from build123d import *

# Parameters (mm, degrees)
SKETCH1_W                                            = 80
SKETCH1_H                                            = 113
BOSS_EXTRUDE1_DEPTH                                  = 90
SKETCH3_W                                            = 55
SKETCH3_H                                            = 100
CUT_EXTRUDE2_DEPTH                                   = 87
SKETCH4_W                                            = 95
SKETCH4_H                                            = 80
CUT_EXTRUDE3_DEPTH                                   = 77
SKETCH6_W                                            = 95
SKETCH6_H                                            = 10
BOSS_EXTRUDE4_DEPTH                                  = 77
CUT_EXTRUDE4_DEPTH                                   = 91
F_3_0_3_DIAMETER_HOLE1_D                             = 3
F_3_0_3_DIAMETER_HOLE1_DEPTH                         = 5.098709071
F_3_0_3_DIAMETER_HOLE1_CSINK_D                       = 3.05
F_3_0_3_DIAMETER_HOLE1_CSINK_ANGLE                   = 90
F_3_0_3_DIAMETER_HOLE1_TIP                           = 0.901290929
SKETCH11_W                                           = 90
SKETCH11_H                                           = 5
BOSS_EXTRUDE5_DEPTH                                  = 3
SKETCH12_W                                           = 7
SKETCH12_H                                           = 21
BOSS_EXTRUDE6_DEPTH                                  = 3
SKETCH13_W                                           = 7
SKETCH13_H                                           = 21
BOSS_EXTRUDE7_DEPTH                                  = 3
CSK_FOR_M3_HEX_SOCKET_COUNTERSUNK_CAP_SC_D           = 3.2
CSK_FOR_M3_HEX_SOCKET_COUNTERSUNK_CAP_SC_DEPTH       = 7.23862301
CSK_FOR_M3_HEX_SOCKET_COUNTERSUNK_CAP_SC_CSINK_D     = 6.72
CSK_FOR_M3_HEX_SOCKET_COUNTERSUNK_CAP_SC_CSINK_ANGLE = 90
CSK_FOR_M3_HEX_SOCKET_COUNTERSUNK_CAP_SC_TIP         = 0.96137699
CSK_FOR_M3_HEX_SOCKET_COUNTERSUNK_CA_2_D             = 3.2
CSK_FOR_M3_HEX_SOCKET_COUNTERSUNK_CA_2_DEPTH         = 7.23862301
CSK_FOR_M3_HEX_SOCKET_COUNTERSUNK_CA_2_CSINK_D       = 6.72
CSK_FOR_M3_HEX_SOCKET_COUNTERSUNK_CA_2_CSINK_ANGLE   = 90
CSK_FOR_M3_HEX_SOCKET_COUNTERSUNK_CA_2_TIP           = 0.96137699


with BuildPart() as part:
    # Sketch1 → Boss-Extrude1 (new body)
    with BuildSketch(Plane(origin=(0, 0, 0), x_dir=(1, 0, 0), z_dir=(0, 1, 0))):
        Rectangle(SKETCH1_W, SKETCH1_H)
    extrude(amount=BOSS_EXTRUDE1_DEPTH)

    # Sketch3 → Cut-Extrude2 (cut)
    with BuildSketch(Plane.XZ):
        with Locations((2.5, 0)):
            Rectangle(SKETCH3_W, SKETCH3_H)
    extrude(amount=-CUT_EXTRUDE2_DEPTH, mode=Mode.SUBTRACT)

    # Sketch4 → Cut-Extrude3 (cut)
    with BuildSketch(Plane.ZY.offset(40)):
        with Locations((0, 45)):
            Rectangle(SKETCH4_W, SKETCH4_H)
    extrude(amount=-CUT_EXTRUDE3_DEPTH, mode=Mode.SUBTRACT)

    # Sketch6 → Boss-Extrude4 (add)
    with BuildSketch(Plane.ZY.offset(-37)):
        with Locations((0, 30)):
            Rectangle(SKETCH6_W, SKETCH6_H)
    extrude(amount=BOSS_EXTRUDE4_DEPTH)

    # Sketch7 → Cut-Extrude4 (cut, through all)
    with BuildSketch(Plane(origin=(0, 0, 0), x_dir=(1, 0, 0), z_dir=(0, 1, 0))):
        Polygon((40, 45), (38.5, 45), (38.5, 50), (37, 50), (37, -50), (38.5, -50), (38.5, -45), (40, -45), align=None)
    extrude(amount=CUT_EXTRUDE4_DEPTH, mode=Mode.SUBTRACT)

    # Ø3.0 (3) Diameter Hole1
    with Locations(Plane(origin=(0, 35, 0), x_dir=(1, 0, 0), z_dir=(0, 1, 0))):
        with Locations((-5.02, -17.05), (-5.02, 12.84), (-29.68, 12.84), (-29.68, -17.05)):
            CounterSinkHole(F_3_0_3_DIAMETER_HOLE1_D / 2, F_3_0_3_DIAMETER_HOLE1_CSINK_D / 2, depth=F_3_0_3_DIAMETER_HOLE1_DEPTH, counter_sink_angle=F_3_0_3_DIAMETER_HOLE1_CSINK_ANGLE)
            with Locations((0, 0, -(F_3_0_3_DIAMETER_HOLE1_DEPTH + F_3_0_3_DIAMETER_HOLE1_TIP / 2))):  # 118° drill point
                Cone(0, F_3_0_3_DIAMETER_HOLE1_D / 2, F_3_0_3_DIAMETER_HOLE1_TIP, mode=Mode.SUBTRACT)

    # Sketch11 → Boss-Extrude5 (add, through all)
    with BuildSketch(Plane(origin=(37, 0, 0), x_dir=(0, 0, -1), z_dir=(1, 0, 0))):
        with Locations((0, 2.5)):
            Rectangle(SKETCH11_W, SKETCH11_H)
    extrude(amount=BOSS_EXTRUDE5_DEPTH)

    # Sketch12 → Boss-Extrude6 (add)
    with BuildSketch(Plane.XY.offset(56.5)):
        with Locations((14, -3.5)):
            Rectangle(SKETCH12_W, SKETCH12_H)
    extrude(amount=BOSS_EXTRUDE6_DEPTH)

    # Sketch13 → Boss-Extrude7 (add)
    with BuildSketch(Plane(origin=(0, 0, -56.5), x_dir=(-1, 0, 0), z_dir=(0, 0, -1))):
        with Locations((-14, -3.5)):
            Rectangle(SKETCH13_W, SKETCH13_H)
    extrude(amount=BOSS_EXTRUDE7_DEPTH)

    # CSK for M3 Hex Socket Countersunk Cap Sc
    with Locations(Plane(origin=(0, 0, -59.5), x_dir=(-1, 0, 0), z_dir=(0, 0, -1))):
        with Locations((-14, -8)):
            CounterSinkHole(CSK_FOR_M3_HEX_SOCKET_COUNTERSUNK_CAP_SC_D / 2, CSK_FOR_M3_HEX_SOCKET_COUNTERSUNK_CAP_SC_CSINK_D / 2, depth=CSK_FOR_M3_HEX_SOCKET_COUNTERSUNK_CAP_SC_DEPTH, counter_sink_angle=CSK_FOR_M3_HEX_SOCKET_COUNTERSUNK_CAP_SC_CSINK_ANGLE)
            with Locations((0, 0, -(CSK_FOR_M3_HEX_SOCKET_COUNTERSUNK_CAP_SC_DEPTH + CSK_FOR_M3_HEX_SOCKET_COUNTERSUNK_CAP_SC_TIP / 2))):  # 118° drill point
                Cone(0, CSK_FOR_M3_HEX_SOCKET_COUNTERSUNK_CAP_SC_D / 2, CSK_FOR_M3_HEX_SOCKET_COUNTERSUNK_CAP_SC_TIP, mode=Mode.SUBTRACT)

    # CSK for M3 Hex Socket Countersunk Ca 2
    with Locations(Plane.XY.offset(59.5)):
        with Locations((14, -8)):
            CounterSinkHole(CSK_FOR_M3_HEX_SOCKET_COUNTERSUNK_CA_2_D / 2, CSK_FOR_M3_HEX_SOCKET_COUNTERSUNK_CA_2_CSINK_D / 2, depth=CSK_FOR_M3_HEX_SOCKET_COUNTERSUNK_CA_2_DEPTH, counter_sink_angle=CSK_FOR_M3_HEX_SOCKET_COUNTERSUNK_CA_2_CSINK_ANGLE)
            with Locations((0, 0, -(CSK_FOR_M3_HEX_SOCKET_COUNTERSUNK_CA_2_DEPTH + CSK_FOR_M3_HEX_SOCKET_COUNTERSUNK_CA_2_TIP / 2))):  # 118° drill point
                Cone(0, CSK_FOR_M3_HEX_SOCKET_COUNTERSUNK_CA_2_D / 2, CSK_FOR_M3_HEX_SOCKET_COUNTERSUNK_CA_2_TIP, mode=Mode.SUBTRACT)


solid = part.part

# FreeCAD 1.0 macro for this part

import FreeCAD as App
import Part
import Sketcher


def add_polygon(sketch, points):
    """Adds a closed chain of lines whose ends are joined by coincident constraints."""
    first, n = sketch.GeometryCount, len(points)
    for a, b in zip(points, points[1:] + points[:1]):
        sketch.addGeometry(Part.LineSegment(App.Vector(*a, 0), App.Vector(*b, 0)), False)
    for i in range(n):
        sketch.addConstraint(Sketcher.Constraint("Coincident", first + i, 2, first + (i + 1) % n, 1))

doc = App.newDocument("Part")
body = doc.addObject("PartDesign::Body", "Body")

sketch1 = body.newObject("Sketcher::SketchObject", "Sketch")
sketch1.AttachmentSupport = (doc.getObject("XZ_Plane"), [""])
sketch1.MapMode = "FlatFace"
add_polygon(sketch1, [(-40, -56), (-40, 56), (40, 56), (40, -56)])
sketch1.addConstraint(Sketcher.Constraint("Vertical", 0))
sketch1.addConstraint(Sketcher.Constraint("Horizontal", 1))
sketch1.addConstraint(Sketcher.Constraint("Vertical", 2))
sketch1.addConstraint(Sketcher.Constraint("Horizontal", 3))
sketch1.addConstraint(Sketcher.Constraint("Symmetric", 0, 2, 2, 2, -1, 1))
sketch1.addConstraint(Sketcher.Constraint("DistanceX", 1, 1, 1, 2, 80.0))
sketch1.addConstraint(Sketcher.Constraint("DistanceY", 0, 1, 0, 2, 113.0))
pad1 = body.newObject("PartDesign::Pad", "Pad")
pad1.Profile = sketch1
pad1.Length = 90
pad1.Reversed = True

sketch2 = body.newObject("Sketcher::SketchObject", "Sketch001")
sketch2.AttachmentSupport = (doc.getObject("XZ_Plane"), [""])
sketch2.MapMode = "FlatFace"
add_polygon(sketch2, [(-25, 50), (-25, -50), (30, -50), (30, 50)])
sketch2.addConstraint(Sketcher.Constraint("Vertical", 0))
sketch2.addConstraint(Sketcher.Constraint("Horizontal", 1))
sketch2.addConstraint(Sketcher.Constraint("Vertical", 2))
sketch2.addConstraint(Sketcher.Constraint("Horizontal", 3))
sketch2.addConstraint(Sketcher.Constraint("DistanceX", 1, 1, 1, 2, 55.0))
sketch2.addConstraint(Sketcher.Constraint("DistanceY", 0, 2, 0, 1, 100.0))
sketch2.addConstraint(Sketcher.Constraint("DistanceX", 0, 2, -1, 1, 25.0))
sketch2.addConstraint(Sketcher.Constraint("DistanceY", 0, 2, -1, 1, 50.0))
pocket1 = body.newObject("PartDesign::Pocket", "Pocket")
pocket1.Profile = sketch2
pocket1.Length = 87

sketch3 = body.newObject("Sketcher::SketchObject", "Sketch002")
sketch3.AttachmentSupport = (doc.getObject("YZ_Plane"), [""])
sketch3.MapMode = "FlatFace"
sketch3.AttachmentOffset = App.Placement(App.Vector(0, 0, -40), App.Rotation())
add_polygon(sketch3, [(85, -48), (5, -48), (5, 48), (85, 48)])
sketch3.addConstraint(Sketcher.Constraint("Horizontal", 0))
sketch3.addConstraint(Sketcher.Constraint("Vertical", 1))
sketch3.addConstraint(Sketcher.Constraint("Horizontal", 2))
sketch3.addConstraint(Sketcher.Constraint("Vertical", 3))
sketch3.addConstraint(Sketcher.Constraint("DistanceX", 0, 2, 0, 1, 80.0))
sketch3.addConstraint(Sketcher.Constraint("DistanceY", 1, 1, 1, 2, 95.0))
sketch3.addConstraint(Sketcher.Constraint("DistanceX", -1, 1, 0, 2, 5.0))
sketch3.addConstraint(Sketcher.Constraint("DistanceY", 0, 2, -1, 1, 47.5))
pocket2 = body.newObject("PartDesign::Pocket", "Pocket001")
pocket2.Profile = sketch3
pocket2.Length = 77
pocket2.Reversed = True

sketch4 = body.newObject("Sketcher::SketchObject", "Sketch003")
sketch4.AttachmentSupport = (doc.getObject("YZ_Plane"), [""])
sketch4.MapMode = "FlatFace"
sketch4.AttachmentOffset = App.Placement(App.Vector(0, 0, 37), App.Rotation())
add_polygon(sketch4, [(35, -48), (25, -48), (25, 48), (35, 48)])
sketch4.addConstraint(Sketcher.Constraint("Horizontal", 0))
sketch4.addConstraint(Sketcher.Constraint("Vertical", 1))
sketch4.addConstraint(Sketcher.Constraint("Horizontal", 2))
sketch4.addConstraint(Sketcher.Constraint("Vertical", 3))
sketch4.addConstraint(Sketcher.Constraint("DistanceX", 0, 2, 0, 1, 10.0))
sketch4.addConstraint(Sketcher.Constraint("DistanceY", 1, 1, 1, 2, 95.0))
sketch4.addConstraint(Sketcher.Constraint("DistanceX", -1, 1, 0, 2, 25.0))
sketch4.addConstraint(Sketcher.Constraint("DistanceY", 0, 2, -1, 1, 47.5))
pad2 = body.newObject("PartDesign::Pad", "Pad001")
pad2.Profile = sketch4
pad2.Length = 77
pad2.Reversed = True

sketch5 = body.newObject("Sketcher::SketchObject", "Sketch004")
sketch5.AttachmentSupport = (doc.getObject("XZ_Plane"), [""])
sketch5.MapMode = "FlatFace"
add_polygon(sketch5, [(40, -45), (38.5, -45), (38.5, -50), (37, -50), (37, 50), (38.5, 50), (38.5, 45), (40, 45)])
sketch5.addConstraint(Sketcher.Constraint("Horizontal", 0))
sketch5.addConstraint(Sketcher.Constraint("Vertical", 1))
sketch5.addConstraint(Sketcher.Constraint("Horizontal", 2))
sketch5.addConstraint(Sketcher.Constraint("Vertical", 3))
sketch5.addConstraint(Sketcher.Constraint("Horizontal", 4))
sketch5.addConstraint(Sketcher.Constraint("Vertical", 5))
sketch5.addConstraint(Sketcher.Constraint("Horizontal", 6))
sketch5.addConstraint(Sketcher.Constraint("Vertical", 7))
sketch5.addConstraint(Sketcher.Constraint("Symmetric", 1, 2, 4, 2, -1))
sketch5.addConstraint(Sketcher.Constraint("Equal", 0, 2))
sketch5.addConstraint(Sketcher.Constraint("Equal", 1, 5))
sketch5.addConstraint(Sketcher.Constraint("DistanceY", 1, 2, 1, 1, 5.0))
sketch5.addConstraint(Sketcher.Constraint("DistanceY", 3, 1, 3, 2, 100.0))
sketch5.addConstraint(Sketcher.Constraint("DistanceX", 0, 2, 0, 1, 1.5))
sketch5.addConstraint(Sketcher.Constraint("DistanceX", -1, 1, 2, 2, 37.0))
pocket3 = body.newObject("PartDesign::Pocket", "Pocket002")
pocket3.Profile = sketch5
pocket3.Type = "ThroughAll"

sketch6 = body.newObject("Sketcher::SketchObject", "Sketch005")
sketch6.AttachmentSupport = (doc.getObject("XZ_Plane"), [""])
sketch6.MapMode = "FlatFace"
sketch6.AttachmentOffset = App.Placement(App.Vector(0, 0, -35), App.Rotation())
sketch6.addGeometry(Part.Circle(App.Vector(-5, 17.1, 0), App.Vector(0, 0, 1), 1.5), False)
sketch6.addGeometry(Part.Circle(App.Vector(-5, -12.8, 0), App.Vector(0, 0, 1), 1.5), False)
sketch6.addGeometry(Part.Circle(App.Vector(-29.7, -12.8, 0), App.Vector(0, 0, 1), 1.5), False)
sketch6.addGeometry(Part.Circle(App.Vector(-29.7, 17.1, 0), App.Vector(0, 0, 1), 1.5), False)
sketch6.addConstraint(Sketcher.Constraint("Equal", 0, 1))
sketch6.addConstraint(Sketcher.Constraint("Equal", 1, 2))
sketch6.addConstraint(Sketcher.Constraint("Equal", 2, 3))
sketch6.addConstraint(Sketcher.Constraint("Horizontal", 1, 3, 2, 3))
sketch6.addConstraint(Sketcher.Constraint("Horizontal", 0, 3, 3, 3))
sketch6.addConstraint(Sketcher.Constraint("Vertical", 0, 3, 1, 3))
sketch6.addConstraint(Sketcher.Constraint("Vertical", 2, 3, 3, 3))
sketch6.addConstraint(Sketcher.Constraint("Diameter", 0, 3.0))
sketch6.addConstraint(Sketcher.Constraint("DistanceX", 0, 3, -1, 1, 5.02))
sketch6.addConstraint(Sketcher.Constraint("DistanceY", -1, 1, 0, 3, 17.05))
sketch6.addConstraint(Sketcher.Constraint("DistanceY", 1, 3, -1, 1, 12.84))
sketch6.addConstraint(Sketcher.Constraint("DistanceX", 2, 3, -1, 1, 29.68))
doc.recompute()
hole = body.newObject("PartDesign::Hole", "Hole")
hole.Profile = sketch6
hole.ThreadType = "None"
hole.Diameter = 3
hole.DepthType = "Dimension"
hole.Depth = 5.098709
hole.DrillPoint = "Angled"
hole.DrillPointAngle = 118
hole.HoleCutType = "Countersink"
hole.HoleCutDiameter = 3.05
hole.HoleCutCountersinkAngle = 90
hole.Reversed = True

sketch7 = body.newObject("Sketcher::SketchObject", "Sketch006")
sketch7.AttachmentSupport = (doc.getObject("YZ_Plane"), [""])
sketch7.MapMode = "FlatFace"
sketch7.AttachmentOffset = App.Placement(App.Vector(0, 0, 37), App.Rotation())
add_polygon(sketch7, [(5, 45), (0, 45), (0, -45), (5, -45)])
sketch7.addConstraint(Sketcher.Constraint("Horizontal", 0))
sketch7.addConstraint(Sketcher.Constraint("Vertical", 1))
sketch7.addConstraint(Sketcher.Constraint("Horizontal", 2))
sketch7.addConstraint(Sketcher.Constraint("Vertical", 3))
sketch7.addConstraint(Sketcher.Constraint("Symmetric", 0, 2, 1, 2, -1, 1))
sketch7.addConstraint(Sketcher.Constraint("DistanceX", 0, 2, 0, 1, 5.0))
sketch7.addConstraint(Sketcher.Constraint("DistanceY", 1, 2, 1, 1, 90.0))
pad3 = body.newObject("PartDesign::Pad", "Pad002")
pad3.Profile = sketch7
pad3.Length = 3

sketch8 = body.newObject("Sketcher::SketchObject", "Sketch007")
sketch8.AttachmentSupport = (doc.getObject("XY_Plane"), [""])
sketch8.MapMode = "FlatFace"
sketch8.AttachmentOffset = App.Placement(App.Vector(0, 0, 56.5), App.Rotation())
add_polygon(sketch8, [(10, 7), (10, -14), (18, -14), (18, 7)])
sketch8.addConstraint(Sketcher.Constraint("Vertical", 0))
sketch8.addConstraint(Sketcher.Constraint("Horizontal", 1))
sketch8.addConstraint(Sketcher.Constraint("Vertical", 2))
sketch8.addConstraint(Sketcher.Constraint("Horizontal", 3))
sketch8.addConstraint(Sketcher.Constraint("DistanceX", 1, 1, 1, 2, 7.0))
sketch8.addConstraint(Sketcher.Constraint("DistanceY", 0, 2, 0, 1, 21.0))
sketch8.addConstraint(Sketcher.Constraint("DistanceY", 0, 2, -1, 1, 14.0))
sketch8.addConstraint(Sketcher.Constraint("DistanceX", -1, 1, 0, 2, 10.5))
pad4 = body.newObject("PartDesign::Pad", "Pad003")
pad4.Profile = sketch8
pad4.Length = 3

sketch9 = body.newObject("Sketcher::SketchObject", "Sketch008")
sketch9.AttachmentSupport = (doc.getObject("XY_Plane"), [""])
sketch9.MapMode = "FlatFace"
sketch9.AttachmentOffset = App.Placement(App.Vector(0, 0, -56.5), App.Rotation())
add_polygon(sketch9, [(18, 7), (18, -14), (10, -14), (10, 7)])
sketch9.addConstraint(Sketcher.Constraint("Vertical", 0))
sketch9.addConstraint(Sketcher.Constraint("Horizontal", 1))
sketch9.addConstraint(Sketcher.Constraint("Vertical", 2))
sketch9.addConstraint(Sketcher.Constraint("Horizontal", 3))
sketch9.addConstraint(Sketcher.Constraint("DistanceX", 1, 2, 1, 1, 7.0))
sketch9.addConstraint(Sketcher.Constraint("DistanceY", 0, 2, 0, 1, 21.0))
sketch9.addConstraint(Sketcher.Constraint("DistanceY", 0, 2, -1, 1, 14.0))
sketch9.addConstraint(Sketcher.Constraint("DistanceX", -1, 1, 0, 2, 17.5))
pad5 = body.newObject("PartDesign::Pad", "Pad004")
pad5.Profile = sketch9
pad5.Length = 3
pad5.Reversed = True

sketch10 = body.newObject("Sketcher::SketchObject", "Sketch009")
sketch10.AttachmentSupport = (doc.getObject("XY_Plane"), [""])
sketch10.MapMode = "FlatFace"
sketch10.AttachmentOffset = App.Placement(App.Vector(0, 0, -59.5), App.Rotation())
sketch10.addGeometry(Part.Circle(App.Vector(14, -8, 0), App.Vector(0, 0, 1), 1.6), False)
sketch10.addConstraint(Sketcher.Constraint("Diameter", 0, 3.2))
sketch10.addConstraint(Sketcher.Constraint("DistanceX", -1, 1, 0, 3, 14.0))
sketch10.addConstraint(Sketcher.Constraint("DistanceY", 0, 3, -1, 1, 8.0))
doc.recompute()
hole2 = body.newObject("PartDesign::Hole", "Hole001")
hole2.Profile = sketch10
hole2.ThreadType = "None"
hole2.Diameter = 3.2
hole2.DepthType = "Dimension"
hole2.Depth = 7.238623
hole2.DrillPoint = "Angled"
hole2.DrillPointAngle = 118
hole2.HoleCutType = "Countersink"
hole2.HoleCutDiameter = 6.72
hole2.HoleCutCountersinkAngle = 90
hole2.Reversed = True

sketch11 = body.newObject("Sketcher::SketchObject", "Sketch010")
sketch11.AttachmentSupport = (doc.getObject("XY_Plane"), [""])
sketch11.MapMode = "FlatFace"
sketch11.AttachmentOffset = App.Placement(App.Vector(0, 0, 59.5), App.Rotation())
sketch11.addGeometry(Part.Circle(App.Vector(14, -8, 0), App.Vector(0, 0, 1), 1.6), False)
sketch11.addConstraint(Sketcher.Constraint("Diameter", 0, 3.2))
sketch11.addConstraint(Sketcher.Constraint("DistanceX", -1, 1, 0, 3, 14.0))
sketch11.addConstraint(Sketcher.Constraint("DistanceY", 0, 3, -1, 1, 8.0))
doc.recompute()
hole3 = body.newObject("PartDesign::Hole", "Hole002")
hole3.Profile = sketch11
hole3.ThreadType = "None"
hole3.Diameter = 3.2
hole3.DepthType = "Dimension"
hole3.Depth = 7.238623
hole3.DrillPoint = "Angled"
hole3.DrillPointAngle = 118
hole3.HoleCutType = "Countersink"
hole3.HoleCutDiameter = 6.72
hole3.HoleCutCountersinkAngle = 90

doc.recompute()
